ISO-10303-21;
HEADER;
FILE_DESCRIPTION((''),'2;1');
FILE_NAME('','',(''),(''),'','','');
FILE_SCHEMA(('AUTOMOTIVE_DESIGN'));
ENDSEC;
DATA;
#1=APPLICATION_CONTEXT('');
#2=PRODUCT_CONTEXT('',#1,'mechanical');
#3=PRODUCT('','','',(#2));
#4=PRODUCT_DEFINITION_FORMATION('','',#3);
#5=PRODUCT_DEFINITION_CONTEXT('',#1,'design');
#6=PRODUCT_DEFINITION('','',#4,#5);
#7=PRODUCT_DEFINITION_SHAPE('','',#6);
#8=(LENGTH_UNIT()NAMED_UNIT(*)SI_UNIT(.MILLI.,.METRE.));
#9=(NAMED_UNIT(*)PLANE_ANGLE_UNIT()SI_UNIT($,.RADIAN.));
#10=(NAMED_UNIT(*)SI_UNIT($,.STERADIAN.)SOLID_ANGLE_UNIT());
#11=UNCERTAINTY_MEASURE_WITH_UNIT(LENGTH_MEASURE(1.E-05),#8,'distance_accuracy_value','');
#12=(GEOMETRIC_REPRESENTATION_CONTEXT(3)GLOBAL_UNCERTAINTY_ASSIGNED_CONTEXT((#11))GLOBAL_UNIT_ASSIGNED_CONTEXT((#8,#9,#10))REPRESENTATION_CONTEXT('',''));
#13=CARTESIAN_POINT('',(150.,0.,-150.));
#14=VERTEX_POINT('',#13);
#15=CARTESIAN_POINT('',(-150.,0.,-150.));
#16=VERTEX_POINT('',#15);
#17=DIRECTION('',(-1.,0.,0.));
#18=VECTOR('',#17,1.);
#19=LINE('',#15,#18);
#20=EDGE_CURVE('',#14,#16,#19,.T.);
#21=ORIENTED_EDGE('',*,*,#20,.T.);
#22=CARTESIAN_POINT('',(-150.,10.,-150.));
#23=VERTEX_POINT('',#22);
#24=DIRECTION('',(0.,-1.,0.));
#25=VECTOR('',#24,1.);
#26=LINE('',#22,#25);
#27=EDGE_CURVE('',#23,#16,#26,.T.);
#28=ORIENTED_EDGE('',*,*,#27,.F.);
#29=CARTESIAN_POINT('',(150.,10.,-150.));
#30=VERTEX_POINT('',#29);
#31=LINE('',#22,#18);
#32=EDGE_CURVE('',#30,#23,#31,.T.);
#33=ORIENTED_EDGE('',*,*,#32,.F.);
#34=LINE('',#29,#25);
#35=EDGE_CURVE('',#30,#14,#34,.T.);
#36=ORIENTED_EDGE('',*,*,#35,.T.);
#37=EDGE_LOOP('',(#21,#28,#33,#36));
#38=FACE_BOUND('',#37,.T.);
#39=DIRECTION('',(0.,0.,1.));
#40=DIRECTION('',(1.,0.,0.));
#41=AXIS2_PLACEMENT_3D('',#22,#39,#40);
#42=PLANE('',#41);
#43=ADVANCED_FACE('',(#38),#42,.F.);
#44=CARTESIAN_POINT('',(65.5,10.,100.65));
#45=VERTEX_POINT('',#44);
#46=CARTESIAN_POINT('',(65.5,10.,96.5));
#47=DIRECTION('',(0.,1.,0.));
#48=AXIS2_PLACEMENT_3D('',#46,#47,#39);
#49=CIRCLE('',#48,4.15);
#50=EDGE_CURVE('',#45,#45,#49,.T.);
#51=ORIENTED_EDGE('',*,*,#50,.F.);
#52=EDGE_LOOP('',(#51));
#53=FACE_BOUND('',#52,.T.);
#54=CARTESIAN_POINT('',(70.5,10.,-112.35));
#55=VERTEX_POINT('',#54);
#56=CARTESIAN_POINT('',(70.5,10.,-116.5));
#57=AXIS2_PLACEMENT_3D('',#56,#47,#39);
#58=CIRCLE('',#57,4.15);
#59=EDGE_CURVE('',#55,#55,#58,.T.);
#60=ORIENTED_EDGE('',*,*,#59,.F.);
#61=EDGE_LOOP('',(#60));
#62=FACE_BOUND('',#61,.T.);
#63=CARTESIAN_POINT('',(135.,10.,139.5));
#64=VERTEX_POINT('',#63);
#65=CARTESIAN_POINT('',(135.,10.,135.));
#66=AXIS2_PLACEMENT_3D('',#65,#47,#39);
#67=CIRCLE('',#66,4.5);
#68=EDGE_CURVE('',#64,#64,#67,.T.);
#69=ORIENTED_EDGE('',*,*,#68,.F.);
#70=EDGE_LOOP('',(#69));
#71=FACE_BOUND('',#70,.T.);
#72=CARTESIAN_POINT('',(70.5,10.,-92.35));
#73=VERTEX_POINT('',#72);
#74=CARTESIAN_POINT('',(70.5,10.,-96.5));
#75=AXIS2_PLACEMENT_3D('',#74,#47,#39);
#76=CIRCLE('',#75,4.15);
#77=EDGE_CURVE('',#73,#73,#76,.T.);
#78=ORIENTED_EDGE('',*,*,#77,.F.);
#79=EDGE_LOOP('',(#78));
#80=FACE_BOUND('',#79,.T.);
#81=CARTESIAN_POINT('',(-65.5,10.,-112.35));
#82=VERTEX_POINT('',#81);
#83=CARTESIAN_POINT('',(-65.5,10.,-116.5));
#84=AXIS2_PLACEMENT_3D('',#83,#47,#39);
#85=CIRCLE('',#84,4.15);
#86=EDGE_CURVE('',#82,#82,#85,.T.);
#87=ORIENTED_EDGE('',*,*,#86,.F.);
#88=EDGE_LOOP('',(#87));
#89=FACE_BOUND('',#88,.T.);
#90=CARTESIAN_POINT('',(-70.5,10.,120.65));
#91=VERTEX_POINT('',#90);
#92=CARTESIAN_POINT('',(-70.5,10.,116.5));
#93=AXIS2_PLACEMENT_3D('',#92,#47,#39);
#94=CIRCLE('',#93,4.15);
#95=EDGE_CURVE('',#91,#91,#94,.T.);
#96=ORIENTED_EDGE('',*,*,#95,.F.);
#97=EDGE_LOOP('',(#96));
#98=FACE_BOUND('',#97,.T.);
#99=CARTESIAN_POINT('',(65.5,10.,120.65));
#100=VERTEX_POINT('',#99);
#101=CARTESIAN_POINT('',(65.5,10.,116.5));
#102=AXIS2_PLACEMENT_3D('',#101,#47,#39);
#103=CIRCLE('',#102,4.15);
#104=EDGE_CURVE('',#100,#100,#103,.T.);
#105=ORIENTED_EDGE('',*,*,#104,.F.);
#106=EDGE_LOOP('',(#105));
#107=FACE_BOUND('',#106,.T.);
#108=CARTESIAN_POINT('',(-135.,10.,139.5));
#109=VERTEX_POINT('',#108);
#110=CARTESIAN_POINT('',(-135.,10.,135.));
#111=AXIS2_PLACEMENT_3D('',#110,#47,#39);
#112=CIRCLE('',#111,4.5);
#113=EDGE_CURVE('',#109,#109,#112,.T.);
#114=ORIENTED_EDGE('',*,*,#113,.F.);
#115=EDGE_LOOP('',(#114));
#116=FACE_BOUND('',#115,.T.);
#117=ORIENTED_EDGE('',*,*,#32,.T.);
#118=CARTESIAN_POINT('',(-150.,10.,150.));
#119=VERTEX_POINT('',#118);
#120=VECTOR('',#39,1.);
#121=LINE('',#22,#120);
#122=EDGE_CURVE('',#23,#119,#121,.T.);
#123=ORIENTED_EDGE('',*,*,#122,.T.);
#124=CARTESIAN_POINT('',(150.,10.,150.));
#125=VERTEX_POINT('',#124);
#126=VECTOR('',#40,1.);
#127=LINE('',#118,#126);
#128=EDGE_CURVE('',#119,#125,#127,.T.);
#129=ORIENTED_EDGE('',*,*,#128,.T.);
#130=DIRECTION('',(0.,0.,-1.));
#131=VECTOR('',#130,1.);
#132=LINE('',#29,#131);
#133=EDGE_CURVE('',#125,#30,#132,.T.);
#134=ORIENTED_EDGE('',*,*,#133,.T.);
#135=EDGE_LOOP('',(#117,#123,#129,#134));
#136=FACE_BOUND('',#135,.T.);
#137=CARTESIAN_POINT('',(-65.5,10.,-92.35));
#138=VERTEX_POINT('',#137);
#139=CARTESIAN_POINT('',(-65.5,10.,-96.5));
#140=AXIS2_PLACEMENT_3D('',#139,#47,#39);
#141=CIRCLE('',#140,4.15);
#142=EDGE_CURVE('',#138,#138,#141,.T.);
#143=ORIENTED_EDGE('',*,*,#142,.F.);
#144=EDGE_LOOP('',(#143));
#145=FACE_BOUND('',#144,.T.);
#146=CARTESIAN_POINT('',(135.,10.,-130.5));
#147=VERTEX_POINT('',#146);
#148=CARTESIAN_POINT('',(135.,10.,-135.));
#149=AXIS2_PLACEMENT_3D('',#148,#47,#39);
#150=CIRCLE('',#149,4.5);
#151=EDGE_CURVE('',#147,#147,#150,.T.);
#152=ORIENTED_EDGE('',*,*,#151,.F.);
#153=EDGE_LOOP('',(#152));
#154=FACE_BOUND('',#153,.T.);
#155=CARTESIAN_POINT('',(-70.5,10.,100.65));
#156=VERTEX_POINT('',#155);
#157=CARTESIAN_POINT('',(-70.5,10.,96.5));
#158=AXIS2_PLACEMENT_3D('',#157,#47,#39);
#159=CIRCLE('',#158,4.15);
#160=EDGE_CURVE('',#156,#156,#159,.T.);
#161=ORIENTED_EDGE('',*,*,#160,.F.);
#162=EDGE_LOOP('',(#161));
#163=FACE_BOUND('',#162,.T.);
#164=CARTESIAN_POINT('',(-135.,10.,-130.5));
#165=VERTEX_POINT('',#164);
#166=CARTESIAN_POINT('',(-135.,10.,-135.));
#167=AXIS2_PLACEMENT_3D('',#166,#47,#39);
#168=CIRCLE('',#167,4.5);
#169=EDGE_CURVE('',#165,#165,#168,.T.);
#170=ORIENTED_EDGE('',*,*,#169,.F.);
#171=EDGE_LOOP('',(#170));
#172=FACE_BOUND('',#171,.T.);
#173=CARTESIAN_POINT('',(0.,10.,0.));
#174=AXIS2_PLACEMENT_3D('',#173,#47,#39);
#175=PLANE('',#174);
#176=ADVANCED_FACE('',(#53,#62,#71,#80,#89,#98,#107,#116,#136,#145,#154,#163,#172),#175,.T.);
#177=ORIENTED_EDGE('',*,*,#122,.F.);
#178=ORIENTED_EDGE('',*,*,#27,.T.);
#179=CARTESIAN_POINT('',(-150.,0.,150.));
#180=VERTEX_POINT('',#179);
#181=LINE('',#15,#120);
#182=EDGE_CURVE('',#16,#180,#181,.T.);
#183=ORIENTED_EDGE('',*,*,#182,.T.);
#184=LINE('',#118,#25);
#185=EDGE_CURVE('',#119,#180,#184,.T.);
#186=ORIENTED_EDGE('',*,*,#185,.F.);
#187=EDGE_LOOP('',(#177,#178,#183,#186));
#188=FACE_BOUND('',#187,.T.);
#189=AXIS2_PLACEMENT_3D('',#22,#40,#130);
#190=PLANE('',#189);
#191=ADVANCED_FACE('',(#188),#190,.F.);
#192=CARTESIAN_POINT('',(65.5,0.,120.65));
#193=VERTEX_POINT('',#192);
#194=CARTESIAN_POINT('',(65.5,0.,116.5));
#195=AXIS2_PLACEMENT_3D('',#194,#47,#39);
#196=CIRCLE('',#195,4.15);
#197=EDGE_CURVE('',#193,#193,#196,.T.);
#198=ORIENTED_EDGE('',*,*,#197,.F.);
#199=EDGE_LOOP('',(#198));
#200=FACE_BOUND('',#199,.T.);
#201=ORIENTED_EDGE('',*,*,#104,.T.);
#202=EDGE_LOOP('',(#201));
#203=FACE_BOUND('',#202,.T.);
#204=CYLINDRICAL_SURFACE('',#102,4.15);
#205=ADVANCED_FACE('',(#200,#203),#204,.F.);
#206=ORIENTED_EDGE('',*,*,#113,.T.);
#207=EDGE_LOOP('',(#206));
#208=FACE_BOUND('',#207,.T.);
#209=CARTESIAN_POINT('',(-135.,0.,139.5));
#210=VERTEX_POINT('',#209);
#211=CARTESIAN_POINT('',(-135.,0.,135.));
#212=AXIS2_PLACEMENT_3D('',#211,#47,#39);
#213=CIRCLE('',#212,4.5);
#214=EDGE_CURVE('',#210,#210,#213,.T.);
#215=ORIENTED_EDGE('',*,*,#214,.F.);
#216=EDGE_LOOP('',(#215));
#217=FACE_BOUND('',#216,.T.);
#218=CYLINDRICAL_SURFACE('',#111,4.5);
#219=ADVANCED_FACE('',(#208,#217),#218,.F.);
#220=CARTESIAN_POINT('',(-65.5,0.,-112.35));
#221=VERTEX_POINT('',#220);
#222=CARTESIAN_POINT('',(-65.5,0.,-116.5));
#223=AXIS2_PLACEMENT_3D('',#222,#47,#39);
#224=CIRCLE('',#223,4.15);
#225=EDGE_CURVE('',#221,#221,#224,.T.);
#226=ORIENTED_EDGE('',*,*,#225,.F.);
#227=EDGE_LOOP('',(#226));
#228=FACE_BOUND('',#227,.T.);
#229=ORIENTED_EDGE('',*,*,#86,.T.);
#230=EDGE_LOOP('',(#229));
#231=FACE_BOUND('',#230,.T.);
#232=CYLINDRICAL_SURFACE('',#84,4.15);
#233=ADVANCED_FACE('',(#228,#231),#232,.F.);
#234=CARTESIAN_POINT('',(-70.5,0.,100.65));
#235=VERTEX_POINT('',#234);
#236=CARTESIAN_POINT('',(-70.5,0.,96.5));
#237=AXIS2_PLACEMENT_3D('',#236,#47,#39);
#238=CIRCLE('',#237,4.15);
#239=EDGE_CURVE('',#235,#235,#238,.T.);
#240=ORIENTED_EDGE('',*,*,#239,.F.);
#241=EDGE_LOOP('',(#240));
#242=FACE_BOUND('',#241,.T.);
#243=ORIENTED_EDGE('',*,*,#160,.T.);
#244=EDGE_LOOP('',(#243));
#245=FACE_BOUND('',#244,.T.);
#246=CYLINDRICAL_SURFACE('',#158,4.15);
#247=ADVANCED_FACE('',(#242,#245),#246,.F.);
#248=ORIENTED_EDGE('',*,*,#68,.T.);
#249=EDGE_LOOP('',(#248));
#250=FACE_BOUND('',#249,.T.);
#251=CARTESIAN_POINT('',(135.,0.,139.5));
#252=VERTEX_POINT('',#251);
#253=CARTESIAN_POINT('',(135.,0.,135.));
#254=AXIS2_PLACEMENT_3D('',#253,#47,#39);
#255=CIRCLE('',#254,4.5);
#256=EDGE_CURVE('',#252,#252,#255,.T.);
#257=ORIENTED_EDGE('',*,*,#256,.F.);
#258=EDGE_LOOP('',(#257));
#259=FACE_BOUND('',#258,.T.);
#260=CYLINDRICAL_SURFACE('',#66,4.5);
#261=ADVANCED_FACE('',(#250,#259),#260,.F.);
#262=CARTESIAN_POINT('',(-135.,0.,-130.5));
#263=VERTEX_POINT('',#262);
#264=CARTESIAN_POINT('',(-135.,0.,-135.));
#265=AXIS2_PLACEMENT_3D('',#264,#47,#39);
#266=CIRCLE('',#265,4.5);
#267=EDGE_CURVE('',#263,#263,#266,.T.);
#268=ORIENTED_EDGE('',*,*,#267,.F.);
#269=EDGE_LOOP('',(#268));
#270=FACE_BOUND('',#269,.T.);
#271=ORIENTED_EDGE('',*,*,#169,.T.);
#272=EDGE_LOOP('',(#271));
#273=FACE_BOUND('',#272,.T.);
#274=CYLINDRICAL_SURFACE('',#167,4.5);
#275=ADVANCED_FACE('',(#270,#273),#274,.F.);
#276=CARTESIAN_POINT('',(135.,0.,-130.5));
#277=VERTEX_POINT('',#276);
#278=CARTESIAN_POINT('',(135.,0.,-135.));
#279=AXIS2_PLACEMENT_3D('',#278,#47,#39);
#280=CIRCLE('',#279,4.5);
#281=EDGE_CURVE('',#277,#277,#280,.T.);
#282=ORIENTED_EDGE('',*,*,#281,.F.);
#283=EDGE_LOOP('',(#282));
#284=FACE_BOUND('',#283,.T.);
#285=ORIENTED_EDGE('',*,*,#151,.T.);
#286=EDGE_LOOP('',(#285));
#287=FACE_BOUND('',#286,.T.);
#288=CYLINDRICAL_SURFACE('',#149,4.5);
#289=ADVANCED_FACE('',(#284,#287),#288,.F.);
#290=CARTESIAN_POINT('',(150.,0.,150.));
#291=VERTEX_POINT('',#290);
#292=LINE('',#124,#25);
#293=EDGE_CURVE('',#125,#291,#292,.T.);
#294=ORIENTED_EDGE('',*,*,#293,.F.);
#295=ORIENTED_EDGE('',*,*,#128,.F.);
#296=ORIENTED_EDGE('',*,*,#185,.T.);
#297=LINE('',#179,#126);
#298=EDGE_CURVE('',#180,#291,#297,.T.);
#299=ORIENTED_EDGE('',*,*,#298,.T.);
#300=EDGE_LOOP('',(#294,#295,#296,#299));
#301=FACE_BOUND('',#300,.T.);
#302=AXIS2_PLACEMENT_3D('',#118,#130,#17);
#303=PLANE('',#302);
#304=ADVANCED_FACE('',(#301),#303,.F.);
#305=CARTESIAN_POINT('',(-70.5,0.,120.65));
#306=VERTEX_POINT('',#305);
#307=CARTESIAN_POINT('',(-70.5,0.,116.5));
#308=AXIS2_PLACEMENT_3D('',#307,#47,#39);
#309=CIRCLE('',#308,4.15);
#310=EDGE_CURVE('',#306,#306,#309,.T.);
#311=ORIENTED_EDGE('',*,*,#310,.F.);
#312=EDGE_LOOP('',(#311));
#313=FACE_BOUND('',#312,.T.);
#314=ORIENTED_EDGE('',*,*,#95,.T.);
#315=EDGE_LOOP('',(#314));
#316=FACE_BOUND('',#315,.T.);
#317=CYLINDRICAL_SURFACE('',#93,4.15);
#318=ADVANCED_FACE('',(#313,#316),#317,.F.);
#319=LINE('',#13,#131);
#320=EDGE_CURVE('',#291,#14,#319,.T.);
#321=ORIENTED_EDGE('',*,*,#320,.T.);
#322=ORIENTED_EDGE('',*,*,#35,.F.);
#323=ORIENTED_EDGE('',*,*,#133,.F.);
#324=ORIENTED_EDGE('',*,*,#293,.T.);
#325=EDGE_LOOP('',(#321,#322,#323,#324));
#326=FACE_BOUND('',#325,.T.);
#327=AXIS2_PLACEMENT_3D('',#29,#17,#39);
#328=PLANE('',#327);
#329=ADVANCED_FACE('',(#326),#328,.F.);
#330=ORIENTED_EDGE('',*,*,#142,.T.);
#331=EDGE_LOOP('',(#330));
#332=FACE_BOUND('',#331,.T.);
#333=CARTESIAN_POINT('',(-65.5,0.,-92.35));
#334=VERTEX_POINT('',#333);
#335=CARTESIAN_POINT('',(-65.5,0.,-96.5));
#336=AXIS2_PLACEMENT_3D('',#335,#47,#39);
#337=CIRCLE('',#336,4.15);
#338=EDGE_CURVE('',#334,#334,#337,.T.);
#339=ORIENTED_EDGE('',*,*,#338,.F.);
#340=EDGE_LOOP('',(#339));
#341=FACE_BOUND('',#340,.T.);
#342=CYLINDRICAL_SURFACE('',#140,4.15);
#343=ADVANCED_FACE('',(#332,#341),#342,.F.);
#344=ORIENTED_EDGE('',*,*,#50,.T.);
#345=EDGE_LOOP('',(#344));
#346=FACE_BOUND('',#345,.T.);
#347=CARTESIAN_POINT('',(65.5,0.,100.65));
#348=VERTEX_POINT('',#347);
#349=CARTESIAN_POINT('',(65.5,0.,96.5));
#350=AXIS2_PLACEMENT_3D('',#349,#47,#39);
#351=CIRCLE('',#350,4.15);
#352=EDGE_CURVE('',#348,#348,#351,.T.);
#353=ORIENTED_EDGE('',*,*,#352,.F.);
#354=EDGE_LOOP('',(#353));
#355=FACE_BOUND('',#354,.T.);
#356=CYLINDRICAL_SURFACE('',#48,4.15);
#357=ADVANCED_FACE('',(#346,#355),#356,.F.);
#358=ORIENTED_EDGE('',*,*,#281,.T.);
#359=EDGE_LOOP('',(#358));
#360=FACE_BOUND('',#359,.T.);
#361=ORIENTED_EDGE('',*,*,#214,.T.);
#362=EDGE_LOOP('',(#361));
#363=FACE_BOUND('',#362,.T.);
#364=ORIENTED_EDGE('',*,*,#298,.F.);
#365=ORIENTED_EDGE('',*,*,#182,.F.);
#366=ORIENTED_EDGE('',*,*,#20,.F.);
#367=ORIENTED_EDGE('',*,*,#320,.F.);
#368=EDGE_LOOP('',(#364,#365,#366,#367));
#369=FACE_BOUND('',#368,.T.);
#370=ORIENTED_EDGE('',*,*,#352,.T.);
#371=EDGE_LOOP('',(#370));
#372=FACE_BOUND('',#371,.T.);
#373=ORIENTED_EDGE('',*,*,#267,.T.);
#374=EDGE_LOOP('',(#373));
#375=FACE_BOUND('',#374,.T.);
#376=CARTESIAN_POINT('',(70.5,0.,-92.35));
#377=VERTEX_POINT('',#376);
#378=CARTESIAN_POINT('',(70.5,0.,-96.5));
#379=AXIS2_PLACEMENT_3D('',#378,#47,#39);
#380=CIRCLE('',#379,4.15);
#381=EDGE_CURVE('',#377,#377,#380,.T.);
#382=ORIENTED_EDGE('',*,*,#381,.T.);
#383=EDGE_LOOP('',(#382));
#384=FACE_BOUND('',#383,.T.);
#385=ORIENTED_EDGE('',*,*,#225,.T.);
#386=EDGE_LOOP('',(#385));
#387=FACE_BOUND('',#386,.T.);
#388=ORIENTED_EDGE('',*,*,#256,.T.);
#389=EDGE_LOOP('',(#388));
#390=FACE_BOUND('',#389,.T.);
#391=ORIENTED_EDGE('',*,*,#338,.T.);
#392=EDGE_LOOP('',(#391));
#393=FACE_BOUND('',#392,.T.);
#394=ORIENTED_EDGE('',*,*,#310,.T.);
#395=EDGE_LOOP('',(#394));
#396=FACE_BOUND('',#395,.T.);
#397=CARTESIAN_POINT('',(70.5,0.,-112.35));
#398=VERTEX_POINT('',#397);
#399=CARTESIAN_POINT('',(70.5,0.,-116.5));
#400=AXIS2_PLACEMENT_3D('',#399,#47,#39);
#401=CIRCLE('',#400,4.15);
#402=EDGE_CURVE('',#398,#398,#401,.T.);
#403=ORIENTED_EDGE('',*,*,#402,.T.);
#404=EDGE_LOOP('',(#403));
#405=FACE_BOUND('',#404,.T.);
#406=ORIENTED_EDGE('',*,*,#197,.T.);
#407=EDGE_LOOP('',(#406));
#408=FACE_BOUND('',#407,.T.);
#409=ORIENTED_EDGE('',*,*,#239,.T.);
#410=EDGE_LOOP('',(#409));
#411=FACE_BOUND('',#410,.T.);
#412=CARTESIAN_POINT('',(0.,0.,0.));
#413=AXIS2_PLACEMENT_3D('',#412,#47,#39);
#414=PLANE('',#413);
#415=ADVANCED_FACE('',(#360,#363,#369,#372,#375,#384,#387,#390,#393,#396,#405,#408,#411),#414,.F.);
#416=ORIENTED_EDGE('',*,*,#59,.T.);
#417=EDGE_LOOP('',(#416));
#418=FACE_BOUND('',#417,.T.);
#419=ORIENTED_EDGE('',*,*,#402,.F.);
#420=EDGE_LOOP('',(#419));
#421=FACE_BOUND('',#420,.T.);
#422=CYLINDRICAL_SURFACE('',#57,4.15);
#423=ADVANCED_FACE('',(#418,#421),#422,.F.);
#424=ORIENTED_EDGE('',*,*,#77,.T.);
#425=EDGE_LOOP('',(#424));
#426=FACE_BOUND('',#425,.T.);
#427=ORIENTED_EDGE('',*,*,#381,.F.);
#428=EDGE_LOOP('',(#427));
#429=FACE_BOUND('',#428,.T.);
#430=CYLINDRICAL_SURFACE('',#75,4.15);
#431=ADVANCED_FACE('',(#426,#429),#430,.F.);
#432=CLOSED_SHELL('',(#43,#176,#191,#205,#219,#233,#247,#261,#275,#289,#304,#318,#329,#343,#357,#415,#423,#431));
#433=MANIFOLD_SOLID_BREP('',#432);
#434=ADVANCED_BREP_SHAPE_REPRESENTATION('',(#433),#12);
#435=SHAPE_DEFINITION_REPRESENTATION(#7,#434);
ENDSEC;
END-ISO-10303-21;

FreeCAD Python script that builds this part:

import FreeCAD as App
import Part
import Sketcher
from FreeCAD import Vector

doc = App.newDocument("Part")
body = doc.addObject("PartDesign::Body", "Body")

# Sketch on XZ plane
sketch1 = body.newObject("Sketcher::SketchObject", "Sketch")
sketch1.AttachmentSupport = (doc.getObject("XZ_Plane"), [""])
sketch1.MapMode = "FlatFace"
sketch1.addGeometry([
    Part.LineSegment(Vector(-150, -150, 0), Vector(-150, 150, 0)),
    Part.LineSegment(Vector(-150, 150, 0), Vector(150, 150, 0)),
    Part.LineSegment(Vector(150, 150, 0), Vector(150, -150, 0)),
    Part.LineSegment(Vector(150, -150, 0), Vector(-150, -150, 0)),
], False)
sketch1.addConstraint([
    Sketcher.Constraint("Coincident", 0, 2, 1, 1),
    Sketcher.Constraint("Coincident", 1, 2, 2, 1),
    Sketcher.Constraint("Coincident", 2, 2, 3, 1),
    Sketcher.Constraint("Coincident", 3, 2, 0, 1),
    Sketcher.Constraint("Vertical", 0),
    Sketcher.Constraint("Horizontal", 1),
    Sketcher.Constraint("Vertical", 2),
    Sketcher.Constraint("Horizontal", 3),
    Sketcher.Constraint("Symmetric", 0, 2, 2, 2, -1, 1),
    Sketcher.Constraint("Equal", 3, 0),
    Sketcher.Constraint("DistanceX", 1, 1, 1, 2, 300.0),
])
pad1 = body.newObject("PartDesign::Pad", "Pad")
pad1.Profile = sketch1
pad1.Length = 10
pad1.Reversed = True

# Sketch on XZ plane
sketch2 = body.newObject("Sketcher::SketchObject", "Sketch001")
sketch2.AttachmentSupport = (doc.getObject("XZ_Plane"), [""])
sketch2.MapMode = "FlatFace"
sketch2.AttachmentOffset = App.Placement(Vector(0, 0, -10), App.Rotation())
sketch2.addGeometry([
    Part.Circle(Vector(70.5, -116.5, 0), Vector(0, 0, 1), 4.2),  # 0
    Part.Circle(Vector(70.5, -96.5, 0), Vector(0, 0, 1), 4.2),  # 1
    Part.Circle(Vector(65.5, 96.5, 0), Vector(0, 0, 1), 4.2),  # 2
    Part.Circle(Vector(65.5, 116.5, 0), Vector(0, 0, 1), 4.2),  # 3
    Part.Circle(Vector(-65.5, -116.5, 0), Vector(0, 0, 1), 4.2),  # 4
    Part.Circle(Vector(-65.5, -96.5, 0), Vector(0, 0, 1), 4.2),  # 5
    Part.Circle(Vector(-70.5, 96.5, 0), Vector(0, 0, 1), 4.2),  # 6
    Part.Circle(Vector(-70.5, 116.5, 0), Vector(0, 0, 1), 4.2),  # 7
], False)
sketch2.addConstraint([
    Sketcher.Constraint("Equal", 0, 1),
    Sketcher.Constraint("Equal", 1, 2),
    Sketcher.Constraint("Equal", 2, 3),
    Sketcher.Constraint("Equal", 3, 4),
    Sketcher.Constraint("Equal", 4, 5),
    Sketcher.Constraint("Equal", 5, 6),
    Sketcher.Constraint("Equal", 6, 7),
    Sketcher.Constraint("Symmetric", 3, 3, 4, 3, -1, 1),
    Sketcher.Constraint("Symmetric", 2, 3, 5, 3, -1, 1),
    Sketcher.Constraint("Symmetric", 1, 3, 6, 3, -1, 1),
    Sketcher.Constraint("Symmetric", 0, 3, 7, 3, -1, 1),
    Sketcher.Constraint("Horizontal", 0, 3, 4, 3),
    Sketcher.Constraint("Horizontal", 1, 3, 5, 3),
    Sketcher.Constraint("Vertical", 0, 3, 1, 3),
    Sketcher.Constraint("Vertical", 2, 3, 3, 3),
    Sketcher.Constraint("Diameter", 0, 8.3),
    Sketcher.Constraint("DistanceY", 0, 3, 1, 3, 20.0),
    Sketcher.Constraint("DistanceX", 2, 3, 1, 3, 5.0),
    Sketcher.Constraint("DistanceY", 1, 3, 2, 3, 193.0),
    Sketcher.Constraint("DistanceX", 4, 3, 0, 3, 136.0),
])
doc.recompute()
hole = body.newObject("PartDesign::Hole", "Hole")
hole.Profile = sketch2
hole.ThreadType = "None"
hole.Diameter = 8.3
hole.DepthType = "ThroughAll"
hole.Reversed = True

# Sketch on XZ plane
sketch3 = body.newObject("Sketcher::SketchObject", "Sketch002")
sketch3.AttachmentSupport = (doc.getObject("XZ_Plane"), [""])
sketch3.MapMode = "FlatFace"
sketch3.AttachmentOffset = App.Placement(Vector(0, 0, -10), App.Rotation())
sketch3.addGeometry([
    Part.Circle(Vector(-135, 135, 0), Vector(0, 0, 1), 4.5),
    Part.Circle(Vector(-135, -135, 0), Vector(0, 0, 1), 4.5),
    Part.Circle(Vector(135, -135, 0), Vector(0, 0, 1), 4.5),
    Part.Circle(Vector(135, 135, 0), Vector(0, 0, 1), 4.5),
], False)
sketch3.addConstraint([
    Sketcher.Constraint("Equal", 0, 1),
    Sketcher.Constraint("Equal", 1, 2),
    Sketcher.Constraint("Equal", 2, 3),
    Sketcher.Constraint("Symmetric", 0, 3, 2, 3, -1, 1),
    Sketcher.Constraint("Symmetric", 1, 3, 3, 3, -1, 1),
    Sketcher.Constraint("Symmetric", 1, 3, 2, 3, -2),
    Sketcher.Constraint("Diameter", 0, 9.0),
    Sketcher.Constraint("DistanceX", 0, 3, -1, 1, 135.0),
    Sketcher.Constraint("DistanceY", -1, 1, 0, 3, 135.0),
])
doc.recompute()
hole2 = body.newObject("PartDesign::Hole", "Hole001")
hole2.Profile = sketch3
hole2.ThreadType = "None"
hole2.Diameter = 9
hole2.DepthType = "ThroughAll"
hole2.Reversed = True

doc.recompute()
